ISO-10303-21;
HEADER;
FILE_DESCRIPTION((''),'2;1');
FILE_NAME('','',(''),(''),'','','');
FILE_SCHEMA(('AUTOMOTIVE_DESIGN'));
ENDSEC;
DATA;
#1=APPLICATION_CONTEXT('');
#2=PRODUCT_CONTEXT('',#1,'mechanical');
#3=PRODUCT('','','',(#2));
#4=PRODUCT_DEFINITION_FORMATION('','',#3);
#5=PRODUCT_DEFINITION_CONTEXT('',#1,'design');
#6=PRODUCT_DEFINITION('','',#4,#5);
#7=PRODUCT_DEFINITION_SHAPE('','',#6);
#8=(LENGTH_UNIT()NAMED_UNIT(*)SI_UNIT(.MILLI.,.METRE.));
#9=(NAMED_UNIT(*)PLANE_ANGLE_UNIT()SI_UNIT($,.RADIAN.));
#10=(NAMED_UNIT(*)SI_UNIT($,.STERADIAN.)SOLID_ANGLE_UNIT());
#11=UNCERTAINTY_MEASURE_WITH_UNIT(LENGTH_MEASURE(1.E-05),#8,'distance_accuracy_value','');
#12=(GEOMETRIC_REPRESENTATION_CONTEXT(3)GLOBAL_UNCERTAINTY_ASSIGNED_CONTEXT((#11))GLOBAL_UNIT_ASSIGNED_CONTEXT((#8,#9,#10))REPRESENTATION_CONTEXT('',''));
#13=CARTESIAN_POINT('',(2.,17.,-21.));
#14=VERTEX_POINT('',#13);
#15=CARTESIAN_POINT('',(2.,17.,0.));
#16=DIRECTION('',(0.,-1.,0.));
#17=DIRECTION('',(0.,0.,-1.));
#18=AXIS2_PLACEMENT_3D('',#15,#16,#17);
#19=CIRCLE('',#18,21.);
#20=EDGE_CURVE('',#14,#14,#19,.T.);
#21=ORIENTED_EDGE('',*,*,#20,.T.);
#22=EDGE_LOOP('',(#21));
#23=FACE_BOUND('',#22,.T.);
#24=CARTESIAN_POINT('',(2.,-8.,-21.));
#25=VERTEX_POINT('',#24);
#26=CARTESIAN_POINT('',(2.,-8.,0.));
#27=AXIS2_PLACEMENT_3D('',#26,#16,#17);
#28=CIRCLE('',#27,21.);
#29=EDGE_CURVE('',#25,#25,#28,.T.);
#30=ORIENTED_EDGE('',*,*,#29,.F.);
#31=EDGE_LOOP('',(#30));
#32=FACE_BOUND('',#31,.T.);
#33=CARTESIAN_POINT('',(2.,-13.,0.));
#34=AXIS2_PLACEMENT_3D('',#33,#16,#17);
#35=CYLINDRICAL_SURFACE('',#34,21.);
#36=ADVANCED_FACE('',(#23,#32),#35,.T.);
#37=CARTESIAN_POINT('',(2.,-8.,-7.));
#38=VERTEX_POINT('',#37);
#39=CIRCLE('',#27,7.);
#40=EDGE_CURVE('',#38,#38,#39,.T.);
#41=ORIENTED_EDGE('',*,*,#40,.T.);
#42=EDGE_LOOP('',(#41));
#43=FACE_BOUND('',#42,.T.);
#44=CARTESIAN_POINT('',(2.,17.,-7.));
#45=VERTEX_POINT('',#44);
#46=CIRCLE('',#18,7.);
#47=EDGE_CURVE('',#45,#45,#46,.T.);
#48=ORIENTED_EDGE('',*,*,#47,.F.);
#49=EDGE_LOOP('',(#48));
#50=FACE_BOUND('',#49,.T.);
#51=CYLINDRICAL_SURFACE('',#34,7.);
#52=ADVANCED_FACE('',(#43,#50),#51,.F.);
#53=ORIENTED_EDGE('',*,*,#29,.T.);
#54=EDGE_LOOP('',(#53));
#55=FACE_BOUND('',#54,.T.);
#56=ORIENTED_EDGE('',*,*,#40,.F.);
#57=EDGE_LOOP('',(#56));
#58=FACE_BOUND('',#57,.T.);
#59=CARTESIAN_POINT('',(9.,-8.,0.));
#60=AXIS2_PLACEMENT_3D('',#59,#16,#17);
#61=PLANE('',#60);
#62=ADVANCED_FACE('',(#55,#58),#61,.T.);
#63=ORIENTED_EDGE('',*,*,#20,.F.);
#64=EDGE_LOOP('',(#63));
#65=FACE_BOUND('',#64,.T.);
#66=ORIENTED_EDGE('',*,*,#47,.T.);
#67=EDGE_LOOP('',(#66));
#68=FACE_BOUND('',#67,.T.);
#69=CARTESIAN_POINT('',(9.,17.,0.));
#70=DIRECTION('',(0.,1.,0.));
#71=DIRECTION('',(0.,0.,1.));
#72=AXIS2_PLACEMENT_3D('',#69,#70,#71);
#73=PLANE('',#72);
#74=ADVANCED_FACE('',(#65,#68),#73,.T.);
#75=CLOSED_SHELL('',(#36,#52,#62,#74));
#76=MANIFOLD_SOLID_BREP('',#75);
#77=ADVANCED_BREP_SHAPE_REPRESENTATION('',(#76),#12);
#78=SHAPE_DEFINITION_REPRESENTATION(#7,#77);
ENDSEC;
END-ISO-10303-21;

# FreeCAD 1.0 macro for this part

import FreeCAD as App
import Part
import Sketcher

V = App.Vector
Q = App.Units.Quantity


def add_polygon(sketch, points):
    """Adds a closed chain of lines whose ends are joined by coincident constraints."""
    first, n = sketch.GeometryCount, len(points)
    for a, b in zip(points, points[1:] + points[:1]):
        sketch.addGeometry(Part.LineSegment(App.Vector(*a, 0), App.Vector(*b, 0)), False)
    for i in range(n):
        sketch.addConstraint(Sketcher.Constraint("Coincident", first + i, 2, first + (i + 1) % n, 1))

doc = App.newDocument("Part")
body = doc.addObject("PartDesign::Body", "Body")

sketch1 = doc.addObject("Sketcher::SketchObject", "Sketch")
body.addObject(sketch1)
sketch1.AttachmentSupport = (doc.XY_Plane, [""])
sketch1.MapMode = "FlatFace"
add_polygon(sketch1, [(9, 17), (9, -8), (23, -8), (23, 17)])
sketch1.addGeometry(Part.LineSegment(V(2, -8, 0), V(2, 17, 0)), True)
sketch1.addConstraint([
    Sketcher.Constraint("Vertical", 0),
    Sketcher.Constraint("Horizontal", 1),
    Sketcher.Constraint("Vertical", 2),
    Sketcher.Constraint("Horizontal", 3),
    Sketcher.Constraint("Vertical", 4),
    Sketcher.Constraint("Horizontal", 1, 2, 4, 1),
    Sketcher.Constraint("Horizontal", 3, 2, 4, 2),
    Sketcher.Constraint("DistanceX", 1, 1, 1, 2, Q("14 mm")),
    Sketcher.Constraint("DistanceY", 0, 2, 0, 1, Q("25 mm")),
    Sketcher.Constraint("DistanceX", -1, 1, 0, 2, Q("9 mm")),
    Sketcher.Constraint("DistanceY", 0, 2, -1, 1, Q("8 mm")),
    Sketcher.Constraint("DistanceX", -1, 1, 4, 1, Q("2 mm")),
])
revolution = doc.addObject("PartDesign::Revolution", "Revolution")
body.addObject(revolution)
revolution.Profile = sketch1
revolution.ReferenceAxis = (sketch1, ["Axis0"])
revolution.Angle = 360

doc.recompute()
